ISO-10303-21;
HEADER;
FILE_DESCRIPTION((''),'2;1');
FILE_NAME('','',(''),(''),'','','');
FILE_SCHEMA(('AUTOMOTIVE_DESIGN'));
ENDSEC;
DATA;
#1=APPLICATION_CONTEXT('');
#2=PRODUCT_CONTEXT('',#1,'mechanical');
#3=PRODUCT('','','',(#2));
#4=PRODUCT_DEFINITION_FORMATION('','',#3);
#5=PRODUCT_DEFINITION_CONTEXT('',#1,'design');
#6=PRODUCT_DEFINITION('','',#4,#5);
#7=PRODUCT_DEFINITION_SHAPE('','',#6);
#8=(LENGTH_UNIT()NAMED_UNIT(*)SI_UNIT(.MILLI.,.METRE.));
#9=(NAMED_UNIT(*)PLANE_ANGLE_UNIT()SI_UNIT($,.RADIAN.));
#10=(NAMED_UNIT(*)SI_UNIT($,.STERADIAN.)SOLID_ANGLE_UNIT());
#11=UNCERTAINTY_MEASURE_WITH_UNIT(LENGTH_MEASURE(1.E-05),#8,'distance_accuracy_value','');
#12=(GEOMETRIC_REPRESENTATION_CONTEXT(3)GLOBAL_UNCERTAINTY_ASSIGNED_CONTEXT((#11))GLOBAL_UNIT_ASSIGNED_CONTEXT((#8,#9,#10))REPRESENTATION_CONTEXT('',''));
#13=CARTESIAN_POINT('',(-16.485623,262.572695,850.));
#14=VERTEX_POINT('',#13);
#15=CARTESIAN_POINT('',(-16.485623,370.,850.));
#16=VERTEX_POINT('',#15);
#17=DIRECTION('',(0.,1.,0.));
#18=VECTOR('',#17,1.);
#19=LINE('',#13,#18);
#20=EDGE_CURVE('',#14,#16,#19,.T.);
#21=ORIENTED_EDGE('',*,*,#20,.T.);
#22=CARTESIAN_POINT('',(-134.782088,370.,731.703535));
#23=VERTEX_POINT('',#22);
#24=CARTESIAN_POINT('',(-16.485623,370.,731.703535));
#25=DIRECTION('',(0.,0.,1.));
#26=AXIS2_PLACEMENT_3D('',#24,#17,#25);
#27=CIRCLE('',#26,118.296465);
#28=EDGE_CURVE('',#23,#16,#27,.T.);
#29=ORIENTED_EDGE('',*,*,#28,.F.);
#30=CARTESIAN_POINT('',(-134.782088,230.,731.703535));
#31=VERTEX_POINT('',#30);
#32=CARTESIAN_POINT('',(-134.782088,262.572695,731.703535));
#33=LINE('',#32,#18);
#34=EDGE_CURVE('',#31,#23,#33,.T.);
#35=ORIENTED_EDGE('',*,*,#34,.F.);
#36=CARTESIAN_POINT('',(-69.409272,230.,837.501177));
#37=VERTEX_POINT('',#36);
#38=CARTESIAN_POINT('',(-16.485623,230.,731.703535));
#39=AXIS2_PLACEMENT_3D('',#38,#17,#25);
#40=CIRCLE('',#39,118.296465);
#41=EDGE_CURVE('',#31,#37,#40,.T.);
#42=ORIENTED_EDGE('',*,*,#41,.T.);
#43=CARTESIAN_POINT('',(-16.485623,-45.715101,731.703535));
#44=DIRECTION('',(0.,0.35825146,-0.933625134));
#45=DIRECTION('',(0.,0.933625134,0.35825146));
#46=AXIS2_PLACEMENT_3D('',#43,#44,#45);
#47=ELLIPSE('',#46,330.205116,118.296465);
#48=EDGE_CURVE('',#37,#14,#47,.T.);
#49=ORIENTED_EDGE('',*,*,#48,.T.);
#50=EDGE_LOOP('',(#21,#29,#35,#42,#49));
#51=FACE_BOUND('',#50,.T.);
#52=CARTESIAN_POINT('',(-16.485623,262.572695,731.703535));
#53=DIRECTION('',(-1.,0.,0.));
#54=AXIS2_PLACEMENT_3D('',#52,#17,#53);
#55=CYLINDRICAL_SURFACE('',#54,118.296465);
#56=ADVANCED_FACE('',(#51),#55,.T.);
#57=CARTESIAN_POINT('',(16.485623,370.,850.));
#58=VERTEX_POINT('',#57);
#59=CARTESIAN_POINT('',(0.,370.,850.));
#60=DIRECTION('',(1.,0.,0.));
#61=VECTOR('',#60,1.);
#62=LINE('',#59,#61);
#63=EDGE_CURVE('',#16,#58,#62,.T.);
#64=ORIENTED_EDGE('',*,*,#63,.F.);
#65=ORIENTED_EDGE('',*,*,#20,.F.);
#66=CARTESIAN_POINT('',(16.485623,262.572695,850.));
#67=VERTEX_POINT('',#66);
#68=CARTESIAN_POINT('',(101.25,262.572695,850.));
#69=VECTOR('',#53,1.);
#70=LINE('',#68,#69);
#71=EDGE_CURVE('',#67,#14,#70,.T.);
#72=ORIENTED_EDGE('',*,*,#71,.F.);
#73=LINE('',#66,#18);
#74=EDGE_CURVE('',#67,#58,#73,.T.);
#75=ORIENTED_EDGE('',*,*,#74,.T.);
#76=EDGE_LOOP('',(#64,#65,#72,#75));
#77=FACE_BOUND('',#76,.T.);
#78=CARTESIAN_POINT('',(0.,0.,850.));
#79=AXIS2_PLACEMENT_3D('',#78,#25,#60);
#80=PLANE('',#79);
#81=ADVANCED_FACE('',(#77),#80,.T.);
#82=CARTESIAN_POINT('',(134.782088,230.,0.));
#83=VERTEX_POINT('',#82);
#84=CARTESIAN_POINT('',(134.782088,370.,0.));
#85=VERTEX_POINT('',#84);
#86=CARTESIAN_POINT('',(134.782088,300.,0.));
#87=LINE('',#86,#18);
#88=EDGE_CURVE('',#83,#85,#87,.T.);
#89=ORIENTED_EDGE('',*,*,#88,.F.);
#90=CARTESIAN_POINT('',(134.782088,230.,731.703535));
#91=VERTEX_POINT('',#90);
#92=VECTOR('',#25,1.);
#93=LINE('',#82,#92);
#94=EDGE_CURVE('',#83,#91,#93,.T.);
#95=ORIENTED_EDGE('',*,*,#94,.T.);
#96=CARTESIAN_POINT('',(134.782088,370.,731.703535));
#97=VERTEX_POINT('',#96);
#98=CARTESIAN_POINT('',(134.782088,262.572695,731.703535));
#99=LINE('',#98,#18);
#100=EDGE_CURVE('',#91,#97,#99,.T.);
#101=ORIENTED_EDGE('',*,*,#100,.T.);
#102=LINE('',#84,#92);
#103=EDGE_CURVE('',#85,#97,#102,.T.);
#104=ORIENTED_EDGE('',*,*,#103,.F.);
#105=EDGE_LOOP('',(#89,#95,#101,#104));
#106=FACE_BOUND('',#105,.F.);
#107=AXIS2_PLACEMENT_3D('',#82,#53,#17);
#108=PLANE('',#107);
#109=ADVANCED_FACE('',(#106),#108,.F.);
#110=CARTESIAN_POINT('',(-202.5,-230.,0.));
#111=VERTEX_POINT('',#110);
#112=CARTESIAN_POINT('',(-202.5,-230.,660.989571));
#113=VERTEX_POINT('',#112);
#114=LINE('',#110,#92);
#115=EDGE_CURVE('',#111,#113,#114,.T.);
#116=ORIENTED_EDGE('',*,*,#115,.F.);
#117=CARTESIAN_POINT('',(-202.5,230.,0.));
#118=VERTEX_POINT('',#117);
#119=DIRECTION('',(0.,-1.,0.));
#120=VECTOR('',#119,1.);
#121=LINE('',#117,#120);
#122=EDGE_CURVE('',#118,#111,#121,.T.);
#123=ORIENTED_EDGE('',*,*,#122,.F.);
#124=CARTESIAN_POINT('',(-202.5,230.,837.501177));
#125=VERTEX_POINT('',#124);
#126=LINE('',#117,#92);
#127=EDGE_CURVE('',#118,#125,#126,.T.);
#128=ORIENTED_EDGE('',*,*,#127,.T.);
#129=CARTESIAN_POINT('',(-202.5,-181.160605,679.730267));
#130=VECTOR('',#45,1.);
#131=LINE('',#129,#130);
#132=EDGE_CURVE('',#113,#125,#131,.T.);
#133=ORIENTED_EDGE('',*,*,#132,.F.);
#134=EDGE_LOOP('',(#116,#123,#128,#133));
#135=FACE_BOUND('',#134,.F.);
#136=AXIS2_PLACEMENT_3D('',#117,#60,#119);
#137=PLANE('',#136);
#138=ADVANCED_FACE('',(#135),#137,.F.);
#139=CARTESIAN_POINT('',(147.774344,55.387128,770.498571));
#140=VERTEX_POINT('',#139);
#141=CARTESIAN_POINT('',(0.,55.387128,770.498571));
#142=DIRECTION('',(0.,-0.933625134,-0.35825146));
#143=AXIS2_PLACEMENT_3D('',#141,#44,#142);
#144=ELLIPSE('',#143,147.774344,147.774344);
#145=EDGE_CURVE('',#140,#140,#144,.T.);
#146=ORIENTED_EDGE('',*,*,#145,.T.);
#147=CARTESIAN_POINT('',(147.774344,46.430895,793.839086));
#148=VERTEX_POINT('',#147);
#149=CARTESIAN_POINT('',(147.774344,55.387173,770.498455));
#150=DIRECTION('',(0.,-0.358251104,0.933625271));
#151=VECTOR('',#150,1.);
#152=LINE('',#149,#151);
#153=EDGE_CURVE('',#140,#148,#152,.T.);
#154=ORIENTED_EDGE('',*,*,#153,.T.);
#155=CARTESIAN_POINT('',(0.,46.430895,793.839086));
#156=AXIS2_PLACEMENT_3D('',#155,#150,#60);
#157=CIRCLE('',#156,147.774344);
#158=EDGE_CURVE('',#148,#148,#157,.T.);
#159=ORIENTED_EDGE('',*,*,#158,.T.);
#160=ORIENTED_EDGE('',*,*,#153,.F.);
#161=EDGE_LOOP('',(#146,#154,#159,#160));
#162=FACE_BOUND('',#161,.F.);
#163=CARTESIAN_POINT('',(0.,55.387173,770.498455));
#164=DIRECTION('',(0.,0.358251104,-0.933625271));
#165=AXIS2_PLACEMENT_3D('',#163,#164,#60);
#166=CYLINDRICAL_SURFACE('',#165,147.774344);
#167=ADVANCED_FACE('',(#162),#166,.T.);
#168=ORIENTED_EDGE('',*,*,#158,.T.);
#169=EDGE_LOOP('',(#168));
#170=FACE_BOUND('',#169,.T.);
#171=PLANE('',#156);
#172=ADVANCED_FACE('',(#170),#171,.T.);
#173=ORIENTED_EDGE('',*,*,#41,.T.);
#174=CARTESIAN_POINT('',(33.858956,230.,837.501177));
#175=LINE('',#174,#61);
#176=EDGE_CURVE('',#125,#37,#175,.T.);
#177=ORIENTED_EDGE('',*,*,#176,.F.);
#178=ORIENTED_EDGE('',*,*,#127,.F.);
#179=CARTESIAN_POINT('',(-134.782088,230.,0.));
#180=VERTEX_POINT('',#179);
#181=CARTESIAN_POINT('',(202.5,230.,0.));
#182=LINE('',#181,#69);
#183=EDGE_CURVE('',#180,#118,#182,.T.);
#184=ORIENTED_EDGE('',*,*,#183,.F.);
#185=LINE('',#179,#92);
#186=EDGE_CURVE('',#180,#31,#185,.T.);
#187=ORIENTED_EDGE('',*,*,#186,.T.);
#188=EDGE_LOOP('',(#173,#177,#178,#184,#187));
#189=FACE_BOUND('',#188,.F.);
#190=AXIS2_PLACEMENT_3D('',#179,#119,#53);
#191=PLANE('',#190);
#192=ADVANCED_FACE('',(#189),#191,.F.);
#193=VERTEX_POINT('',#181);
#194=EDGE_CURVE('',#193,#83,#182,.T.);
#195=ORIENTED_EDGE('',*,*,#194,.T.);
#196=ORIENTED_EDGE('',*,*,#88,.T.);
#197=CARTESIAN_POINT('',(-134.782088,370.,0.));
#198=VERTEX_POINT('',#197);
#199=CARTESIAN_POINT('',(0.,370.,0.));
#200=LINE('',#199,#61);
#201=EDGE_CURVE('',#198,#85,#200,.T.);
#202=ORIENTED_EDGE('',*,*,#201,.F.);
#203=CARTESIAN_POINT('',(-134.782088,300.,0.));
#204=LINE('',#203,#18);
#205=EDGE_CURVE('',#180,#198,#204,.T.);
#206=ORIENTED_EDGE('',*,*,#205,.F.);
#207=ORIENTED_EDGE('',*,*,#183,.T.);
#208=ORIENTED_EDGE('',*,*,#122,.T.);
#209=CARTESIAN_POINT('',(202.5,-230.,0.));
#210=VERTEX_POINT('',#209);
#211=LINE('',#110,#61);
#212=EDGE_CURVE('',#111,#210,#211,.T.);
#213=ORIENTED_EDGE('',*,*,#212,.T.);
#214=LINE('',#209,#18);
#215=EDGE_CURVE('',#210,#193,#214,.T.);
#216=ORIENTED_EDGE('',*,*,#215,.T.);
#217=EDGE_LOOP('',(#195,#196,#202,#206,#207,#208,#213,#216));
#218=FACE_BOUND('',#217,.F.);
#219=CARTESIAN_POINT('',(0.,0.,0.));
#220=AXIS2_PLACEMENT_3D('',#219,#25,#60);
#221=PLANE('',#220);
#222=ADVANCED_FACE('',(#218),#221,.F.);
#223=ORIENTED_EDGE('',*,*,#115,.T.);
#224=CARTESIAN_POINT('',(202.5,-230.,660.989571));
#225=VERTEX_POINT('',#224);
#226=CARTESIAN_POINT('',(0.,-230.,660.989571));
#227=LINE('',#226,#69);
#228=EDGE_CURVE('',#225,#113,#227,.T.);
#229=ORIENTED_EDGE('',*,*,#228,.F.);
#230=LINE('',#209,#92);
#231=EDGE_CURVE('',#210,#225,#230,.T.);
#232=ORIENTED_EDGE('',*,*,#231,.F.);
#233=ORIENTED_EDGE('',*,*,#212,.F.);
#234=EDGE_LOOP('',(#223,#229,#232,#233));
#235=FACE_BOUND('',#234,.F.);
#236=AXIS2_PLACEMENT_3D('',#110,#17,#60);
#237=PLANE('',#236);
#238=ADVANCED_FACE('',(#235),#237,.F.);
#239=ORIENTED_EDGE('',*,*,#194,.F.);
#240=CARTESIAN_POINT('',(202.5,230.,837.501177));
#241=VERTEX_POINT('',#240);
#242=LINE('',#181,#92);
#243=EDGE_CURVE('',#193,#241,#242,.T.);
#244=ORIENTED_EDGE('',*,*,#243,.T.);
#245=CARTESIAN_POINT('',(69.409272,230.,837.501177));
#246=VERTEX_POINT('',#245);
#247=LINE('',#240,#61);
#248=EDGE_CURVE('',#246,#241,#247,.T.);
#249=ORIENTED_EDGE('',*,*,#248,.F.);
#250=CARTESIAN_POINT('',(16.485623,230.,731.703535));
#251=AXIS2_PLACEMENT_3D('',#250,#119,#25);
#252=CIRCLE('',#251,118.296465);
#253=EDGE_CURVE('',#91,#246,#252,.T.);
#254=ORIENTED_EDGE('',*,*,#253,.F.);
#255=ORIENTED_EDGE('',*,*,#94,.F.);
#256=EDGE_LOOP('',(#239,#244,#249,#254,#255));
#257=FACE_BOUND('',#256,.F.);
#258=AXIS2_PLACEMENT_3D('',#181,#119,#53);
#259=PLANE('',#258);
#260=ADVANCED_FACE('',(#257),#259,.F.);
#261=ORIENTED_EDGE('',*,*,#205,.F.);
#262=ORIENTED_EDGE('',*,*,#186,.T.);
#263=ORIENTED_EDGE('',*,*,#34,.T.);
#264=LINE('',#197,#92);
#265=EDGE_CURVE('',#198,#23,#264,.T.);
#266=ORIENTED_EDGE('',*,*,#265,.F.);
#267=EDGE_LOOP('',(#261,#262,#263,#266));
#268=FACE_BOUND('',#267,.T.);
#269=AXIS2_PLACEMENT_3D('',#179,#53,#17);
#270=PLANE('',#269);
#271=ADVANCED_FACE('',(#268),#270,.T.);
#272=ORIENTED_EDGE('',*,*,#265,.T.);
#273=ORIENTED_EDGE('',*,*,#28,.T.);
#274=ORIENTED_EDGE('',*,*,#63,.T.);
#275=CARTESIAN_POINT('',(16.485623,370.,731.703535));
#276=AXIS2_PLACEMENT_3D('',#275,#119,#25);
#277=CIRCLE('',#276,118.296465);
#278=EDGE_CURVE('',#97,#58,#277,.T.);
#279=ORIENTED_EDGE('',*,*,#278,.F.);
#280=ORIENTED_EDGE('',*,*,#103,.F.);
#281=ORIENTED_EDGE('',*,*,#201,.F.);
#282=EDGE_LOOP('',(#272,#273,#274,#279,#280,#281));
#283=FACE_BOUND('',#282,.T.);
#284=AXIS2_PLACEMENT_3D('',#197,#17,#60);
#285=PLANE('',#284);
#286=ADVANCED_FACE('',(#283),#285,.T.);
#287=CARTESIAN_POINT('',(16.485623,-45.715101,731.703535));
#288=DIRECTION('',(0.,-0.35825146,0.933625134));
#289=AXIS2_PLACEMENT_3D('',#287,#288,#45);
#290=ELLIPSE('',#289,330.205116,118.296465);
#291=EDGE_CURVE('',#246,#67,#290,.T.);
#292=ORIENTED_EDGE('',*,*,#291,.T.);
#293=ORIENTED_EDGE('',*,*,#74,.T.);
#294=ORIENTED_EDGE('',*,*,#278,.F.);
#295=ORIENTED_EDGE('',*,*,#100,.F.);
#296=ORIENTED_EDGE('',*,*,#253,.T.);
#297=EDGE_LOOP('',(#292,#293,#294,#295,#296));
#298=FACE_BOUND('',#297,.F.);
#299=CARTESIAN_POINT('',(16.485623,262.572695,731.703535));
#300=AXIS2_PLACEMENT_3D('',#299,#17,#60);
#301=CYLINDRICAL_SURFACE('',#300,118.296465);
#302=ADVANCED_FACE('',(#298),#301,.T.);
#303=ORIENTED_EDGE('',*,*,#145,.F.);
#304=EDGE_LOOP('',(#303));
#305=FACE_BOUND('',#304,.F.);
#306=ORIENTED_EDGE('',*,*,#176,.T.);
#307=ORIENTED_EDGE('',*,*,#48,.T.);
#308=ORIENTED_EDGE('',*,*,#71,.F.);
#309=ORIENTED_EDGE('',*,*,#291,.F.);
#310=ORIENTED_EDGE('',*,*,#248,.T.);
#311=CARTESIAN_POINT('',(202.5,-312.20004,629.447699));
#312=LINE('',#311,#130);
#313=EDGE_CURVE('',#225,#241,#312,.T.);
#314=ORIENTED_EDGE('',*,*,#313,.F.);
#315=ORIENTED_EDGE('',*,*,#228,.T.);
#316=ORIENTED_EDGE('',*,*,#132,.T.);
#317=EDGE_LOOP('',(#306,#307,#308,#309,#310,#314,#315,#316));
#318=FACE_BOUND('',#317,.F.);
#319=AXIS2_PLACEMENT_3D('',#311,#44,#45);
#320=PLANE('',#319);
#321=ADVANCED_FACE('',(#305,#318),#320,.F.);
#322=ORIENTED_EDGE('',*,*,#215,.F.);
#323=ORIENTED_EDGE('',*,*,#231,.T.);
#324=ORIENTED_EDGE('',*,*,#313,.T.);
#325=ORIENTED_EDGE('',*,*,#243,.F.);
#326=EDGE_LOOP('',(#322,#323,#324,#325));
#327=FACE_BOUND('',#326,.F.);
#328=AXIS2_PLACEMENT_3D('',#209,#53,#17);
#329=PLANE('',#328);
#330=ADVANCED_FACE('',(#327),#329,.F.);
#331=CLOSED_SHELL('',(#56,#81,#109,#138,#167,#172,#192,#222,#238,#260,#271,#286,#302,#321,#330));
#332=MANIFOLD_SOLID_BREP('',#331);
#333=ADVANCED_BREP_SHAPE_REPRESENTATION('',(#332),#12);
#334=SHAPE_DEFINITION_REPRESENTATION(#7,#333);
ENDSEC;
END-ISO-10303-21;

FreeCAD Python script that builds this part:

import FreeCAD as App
import Part
import Sketcher

V = App.Vector


def edges_at(feature, points):
    """Names of the edges that pass closest to the given points."""
    edges = feature.Shape.Edges
    near = lambda p: min(range(len(edges)), key=lambda i: edges[i].distToShape(Part.Vertex(*p))[0])
    return sorted({f"Edge{near(p) + 1}" for p in points})


def add_polygon(sketch, points):
    """Adds a closed chain of lines whose ends are joined by coincident constraints."""
    first, n = sketch.GeometryCount, len(points)
    for a, b in zip(points, points[1:] + points[:1]):
        sketch.addGeometry(Part.LineSegment(App.Vector(*a, 0), App.Vector(*b, 0)), False)
    for i in range(n):
        sketch.addConstraint(Sketcher.Constraint("Coincident", first + i, 2, first + (i + 1) % n, 1))

doc = App.newDocument("Part")
body = doc.addObject("PartDesign::Body", "Body")

# Sketch on XY plane
sketch1 = body.newObject("Sketcher::SketchObject", "Sketch")
sketch1.AttachmentSupport = (doc.getObject("XY_Plane"), [""])
sketch1.MapMode = "FlatFace"
add_polygon(sketch1, [(202, -230), (202, 230), (135, 230), (135, 370), (-135, 370), (-135, 230), (-202, 230), (-202, -230)])  # lines 0-7
sketch1.addConstraint(Sketcher.Constraint("Vertical", 0))
sketch1.addConstraint(Sketcher.Constraint("Horizontal", 1))
sketch1.addConstraint(Sketcher.Constraint("Vertical", 2))
sketch1.addConstraint(Sketcher.Constraint("Horizontal", 3))
sketch1.addConstraint(Sketcher.Constraint("Vertical", 4))
sketch1.addConstraint(Sketcher.Constraint("Horizontal", 5))
sketch1.addConstraint(Sketcher.Constraint("Vertical", 6))
sketch1.addConstraint(Sketcher.Constraint("Horizontal", 7))
sketch1.addConstraint(Sketcher.Constraint("Symmetric", 0, 2, 6, 2, -1, 1))
sketch1.addConstraint(Sketcher.Constraint("Symmetric", 1, 2, 4, 2, -2))
sketch1.addConstraint(Sketcher.Constraint("DistanceX", 7, 1, 7, 2, 405.0))
sketch1.addConstraint(Sketcher.Constraint("DistanceY", 0, 1, 0, 2, 460.0))
sketch1.addConstraint(Sketcher.Constraint("DistanceY", 2, 1, 2, 2, 140.0))
sketch1.addConstraint(Sketcher.Constraint("DistanceX", 1, 2, 1, 1, 67.717912))
pad1 = body.newObject("PartDesign::Pad", "Pad")
pad1.Profile = sketch1
pad1.Length = 850

# Sketch on YZ plane
sketch2 = body.newObject("Sketcher::SketchObject", "Sketch001")
sketch2.AttachmentSupport = (doc.getObject("YZ_Plane"), [""])
sketch2.MapMode = "FlatFace"
sketch2.AttachmentOffset = App.Placement(V(0, 0, 202.5), App.Rotation())
add_polygon(sketch2, [(-312, 629), (365, 889), (-312, 956)])  # lines 0-2
sketch2.addConstraint(Sketcher.Constraint("Vertical", 2))
sketch2.addConstraint(Sketcher.Constraint("DistanceY", 2, 2, 2, 1, 326.663851))
sketch2.addConstraint(Sketcher.Constraint("DistanceY", -1, 1, 2, 2, 629.447699))
sketch2.addConstraint(Sketcher.Constraint("DistanceX", 1, 2, 0, 2, 676.941902))
sketch2.addConstraint(Sketcher.Constraint("DistanceX", 1, 2, -1, 1, 312.20004))
sketch2.addConstraint(Sketcher.Constraint("Distance", 0, 725.068207))
pocket1 = body.newObject("PartDesign::Pocket", "Pocket")
pocket1.Profile = sketch2
pocket1.Type = "ThroughAll"
doc.recompute()

fillet = body.newObject("PartDesign::Fillet", "Fillet")
fillet.Base = (pocket1, edges_at(pocket1, [(134.782, 316.286, 850), (-134.782, 316.286, 850)]))
fillet.Radius = 118.296465

# Sketch on an angled plane
sketch3 = body.newObject("Sketcher::SketchObject", "Sketch002")
sketch3.Placement = App.Placement(V(0, -250.602024, 653.084144), App.Rotation(V(1, 0, 0), V(0, 0.933625271, 0.358251104), V(0, -0.358251104, 0.933625271), "ZXY"))
sketch3.addGeometry(Part.Circle(V(0, 328, 0), V(0, 0, 1), 148), False)
sketch3.addConstraint(Sketcher.Constraint("PointOnObject", 0, 3, -2))
sketch3.addConstraint(Sketcher.Constraint("Diameter", 0, 295.548688))
sketch3.addConstraint(Sketcher.Constraint("DistanceY", -1, 1, 0, 3, 327.743053))
pad2 = body.newObject("PartDesign::Pad", "Pad001")
pad2.Profile = sketch3
pad2.Length = 25

doc.recompute()
